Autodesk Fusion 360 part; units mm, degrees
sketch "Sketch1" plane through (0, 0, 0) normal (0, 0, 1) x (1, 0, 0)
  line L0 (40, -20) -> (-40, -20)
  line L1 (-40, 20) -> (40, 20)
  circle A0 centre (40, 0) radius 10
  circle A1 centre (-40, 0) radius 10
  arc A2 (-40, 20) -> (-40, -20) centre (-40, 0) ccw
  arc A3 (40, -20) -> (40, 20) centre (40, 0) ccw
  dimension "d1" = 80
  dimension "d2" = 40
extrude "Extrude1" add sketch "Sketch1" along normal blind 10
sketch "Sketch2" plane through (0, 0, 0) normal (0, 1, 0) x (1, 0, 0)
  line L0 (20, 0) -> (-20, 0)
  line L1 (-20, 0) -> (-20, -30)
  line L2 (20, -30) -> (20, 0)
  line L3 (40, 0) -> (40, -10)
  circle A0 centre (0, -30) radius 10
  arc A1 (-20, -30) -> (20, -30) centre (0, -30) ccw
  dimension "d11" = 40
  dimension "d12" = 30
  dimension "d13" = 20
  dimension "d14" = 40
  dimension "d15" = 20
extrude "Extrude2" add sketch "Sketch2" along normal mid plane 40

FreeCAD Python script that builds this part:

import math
import FreeCAD as App
import Part
import Sketcher

V = App.Vector
Q = App.Units.Quantity

doc = App.newDocument("Part")
params = doc.addObject("Spreadsheet::Sheet", "Params")
for row, (alias, value) in enumerate([
    ("sketch1_radius", "20 mm"),
    ("sketch1_width", "80 mm"),
    ("sketch1_diameter", "20 mm"),
    ("pad1_length", "10 mm"),
    ("sketch2_diameter", "20 mm"),
    ("sketch2_radius", "20 mm"),
    ("sketch2_height", "30 mm"),
    ("pad2_length", "40 mm"),
], start=1):
    params.set(f"A{row}", alias)
    params.set(f"B{row}", "=" + value)
    params.setAlias(f"B{row}", alias)

body = doc.addObject("PartDesign::Body", "Body")

# Sketch on XY plane
sketch1 = body.newObject("Sketcher::SketchObject", "Sketch")
sketch1.AttachmentSupport = (doc.getObject("XY_Plane"), [""])
sketch1.MapMode = "FlatFace"
sketch1.addGeometry([
    Part.LineSegment(V(-40, -20, 0), V(40, -20, 0)),  # 0
    Part.ArcOfCircle(Part.Circle(V(40, 0, 0), V(0, 0, 1), 20), math.radians(-90), math.radians(90)),  # 1
    Part.LineSegment(V(40, 20, 0), V(-40, 20, 0)),  # 2
    Part.ArcOfCircle(Part.Circle(V(-40, 0, 0), V(0, 0, 1), 20), math.radians(90), math.radians(270)),  # 3
    Part.Circle(V(-40, 0, 0), V(0, 0, 1), 10),  # 4
    Part.Circle(V(40, 0, 0), V(0, 0, 1), 10),  # 5
], False)
sketch1.addConstraint([
    Sketcher.Constraint("Tangent", 0, 2, 1, 1),
    Sketcher.Constraint("Tangent", 1, 2, 2, 1),
    Sketcher.Constraint("Tangent", 2, 2, 3, 1),
    Sketcher.Constraint("Tangent", 3, 2, 0, 1),
    Sketcher.Constraint("Horizontal", 0),
    Sketcher.Constraint("Horizontal", 2),
    Sketcher.Constraint("Coincident", 4, 3, 3, 3),
    Sketcher.Constraint("Coincident", 5, 3, 1, 3),
    Sketcher.Constraint("Equal", 4, 5),
    Sketcher.Constraint("Symmetric", 1, 3, 3, 3, -1, 1),
    Sketcher.Constraint("Radius", 1, Q("20 mm")),
    Sketcher.Constraint("DistanceX", 0, 1, 0, 2, Q("80 mm")),
    Sketcher.Constraint("Diameter", 4, Q("20 mm")),
])
sketch1.setExpression("Constraints[10]", "Params.sketch1_radius")
sketch1.setExpression("Constraints[11]", "Params.sketch1_width")
sketch1.setExpression("Constraints[12]", "Params.sketch1_diameter")
pad1 = body.newObject("PartDesign::Pad", "Pad")
pad1.Profile = sketch1
pad1.setExpression("Length", "Params.pad1_length")

# Sketch on XZ plane
sketch2 = body.newObject("Sketcher::SketchObject", "Sketch001")
sketch2.AttachmentSupport = (doc.getObject("XZ_Plane"), [""])
sketch2.MapMode = "FlatFace"
sketch2.addGeometry([
    Part.LineSegment(V(20, 30, 0), V(20, 0, 0)),  # 0
    Part.LineSegment(V(20, 0, 0), V(-20, 0, 0)),  # 1
    Part.LineSegment(V(-20, 0, 0), V(-20, 30, 0)),  # 2
    Part.ArcOfCircle(Part.Circle(V(0, 30, 0), V(0, 0, 1), 20), math.radians(0), math.radians(180)),  # 3
    Part.Circle(V(0, 30, 0), V(0, 0, 1), 10),  # 4
], False)
sketch2.addConstraint([
    Sketcher.Constraint("Coincident", 0, 2, 1, 1),
    Sketcher.Constraint("Coincident", 1, 2, 2, 1),
    Sketcher.Constraint("Tangent", 2, 2, 3, 2),
    Sketcher.Constraint("Tangent", 3, 1, 0, 1),
    Sketcher.Constraint("Vertical", 0),
    Sketcher.Constraint("Horizontal", 1),
    Sketcher.Constraint("Vertical", 2),
    Sketcher.Constraint("Coincident", 4, 3, 3, 3),
    Sketcher.Constraint("Symmetric", 0, 2, 1, 2, -1, 1),
    Sketcher.Constraint("Diameter", 4, Q("20 mm")),
    Sketcher.Constraint("Radius", 3, Q("20 mm")),
    Sketcher.Constraint("DistanceY", 0, 2, 0, 1, Q("30 mm")),
])
sketch2.setExpression("Constraints[9]", "Params.sketch2_diameter")
sketch2.setExpression("Constraints[10]", "Params.sketch2_radius")
sketch2.setExpression("Constraints[11]", "Params.sketch2_height")
pad2 = body.newObject("PartDesign::Pad", "Pad001")
pad2.Profile = sketch2
pad2.setExpression("Length", "Params.pad2_length")
pad2.Midplane = True

doc.recompute()
